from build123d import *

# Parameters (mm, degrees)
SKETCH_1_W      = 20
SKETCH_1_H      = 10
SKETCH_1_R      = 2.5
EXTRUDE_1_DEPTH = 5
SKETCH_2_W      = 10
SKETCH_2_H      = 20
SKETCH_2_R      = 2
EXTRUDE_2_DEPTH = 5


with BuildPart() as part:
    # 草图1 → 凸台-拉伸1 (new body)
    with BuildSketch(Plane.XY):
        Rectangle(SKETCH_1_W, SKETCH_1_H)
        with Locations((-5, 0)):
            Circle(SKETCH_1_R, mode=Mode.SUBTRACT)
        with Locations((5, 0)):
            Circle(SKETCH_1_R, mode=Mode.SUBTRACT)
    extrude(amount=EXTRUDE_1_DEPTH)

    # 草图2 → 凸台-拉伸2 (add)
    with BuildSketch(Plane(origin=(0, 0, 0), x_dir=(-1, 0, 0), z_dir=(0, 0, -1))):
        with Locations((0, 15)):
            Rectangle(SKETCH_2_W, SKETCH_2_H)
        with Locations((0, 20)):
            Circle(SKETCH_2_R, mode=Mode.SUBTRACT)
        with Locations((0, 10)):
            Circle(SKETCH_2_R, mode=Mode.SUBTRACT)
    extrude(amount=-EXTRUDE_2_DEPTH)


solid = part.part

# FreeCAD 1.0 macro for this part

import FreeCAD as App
import Part
import Sketcher
from FreeCAD import Vector


def add_polygon(sketch, points):
    """Adds a closed chain of lines whose ends are joined by coincident constraints."""
    first, n = sketch.GeometryCount, len(points)
    for a, b in zip(points, points[1:] + points[:1]):
        sketch.addGeometry(Part.LineSegment(App.Vector(*a, 0), App.Vector(*b, 0)), False)
    for i in range(n):
        sketch.addConstraint(Sketcher.Constraint("Coincident", first + i, 2, first + (i + 1) % n, 1))

doc = App.newDocument("Part")
params = doc.addObject("Spreadsheet::Sheet", "Params")
for row, (alias, value) in enumerate([
    ("sketch1_diameter", "5 mm"),
    ("sketch1_width", "20 mm"),
    ("sketch1_height", "10 mm"),
    ("pad1_length", "5 mm"),
    ("sketch2_diameter", "4 mm"),
    ("sketch2_width", "10 mm"),
    ("sketch2_height", "20 mm"),
    ("pad2_length", "5 mm"),
], start=1):
    params.set(f"A{row}", alias)
    params.set(f"B{row}", "=" + value)
    params.setAlias(f"B{row}", alias)

body = doc.addObject("PartDesign::Body", "Body")

sketch1 = doc.addObject("Sketcher::SketchObject", "Sketch")
body.addObject(sketch1)
sketch1.AttachmentSupport = (doc.XY_Plane, [""])
sketch1.MapMode = "FlatFace"
add_polygon(sketch1, [(-10, 5), (-10, -5), (10, -5), (10, 5)])
sketch1.addGeometry(Part.Circle(Vector(-5, 0, 0), Vector(0, 0, 1), 2.5), False)
sketch1.addGeometry(Part.Circle(Vector(5, 0, 0), Vector(0, 0, 1), 2.5), False)
sketch1.addConstraint([
    Sketcher.Constraint("Vertical", 0),
    Sketcher.Constraint("Horizontal", 1),
    Sketcher.Constraint("Vertical", 2),
    Sketcher.Constraint("Horizontal", 3),
    Sketcher.Constraint("Equal", 4, 5),
    Sketcher.Constraint("Symmetric", 4, 3, 5, 3, -1, 1),
    Sketcher.Constraint("Symmetric", 0, 2, 2, 2, -1, 1),
    Sketcher.Constraint("PointOnObject", 4, 3, -1),
    Sketcher.Constraint("Diameter", 4, 5.0),
    Sketcher.Constraint("DistanceX", 1, 1, 1, 2, 20.0),
    Sketcher.Constraint("DistanceY", 0, 2, 0, 1, 10.0),
    Sketcher.Constraint("DistanceX", 4, 3, -1, 1, 5.0),
])
sketch1.setExpression("Constraints[12]", "Params.sketch1_diameter")
sketch1.setExpression("Constraints[13]", "Params.sketch1_width")
sketch1.setExpression("Constraints[14]", "Params.sketch1_height")
pad1 = doc.addObject("PartDesign::Pad", "Pad")
body.addObject(pad1)
pad1.Profile = sketch1
pad1.setExpression("Length", "Params.pad1_length")

sketch2 = doc.addObject("Sketcher::SketchObject", "Sketch001")
body.addObject(sketch2)
sketch2.AttachmentSupport = (doc.XY_Plane, [""])
sketch2.MapMode = "FlatFace"
add_polygon(sketch2, [(5, 25), (5, 5), (-5, 5), (-5, 25)])
sketch2.addGeometry(Part.Circle(Vector(0, 10, 0), Vector(0, 0, 1), 2), False)
sketch2.addGeometry(Part.Circle(Vector(0, 20, 0), Vector(0, 0, 1), 2), False)
sketch2.addConstraint([
    Sketcher.Constraint("Vertical", 0),
    Sketcher.Constraint("Horizontal", 1),
    Sketcher.Constraint("Vertical", 2),
    Sketcher.Constraint("Horizontal", 3),
    Sketcher.Constraint("Equal", 4, 5),
    Sketcher.Constraint("PointOnObject", 4, 3, -2),
    Sketcher.Constraint("PointOnObject", 5, 3, -2),
    Sketcher.Constraint("Diameter", 4, 4.0),
    Sketcher.Constraint("DistanceX", 1, 2, 1, 1, 10.0),
    Sketcher.Constraint("DistanceY", 0, 2, 0, 1, 20.0),
    Sketcher.Constraint("DistanceY", -1, 1, 4, 3, 10.0),
    Sketcher.Constraint("DistanceY", -1, 1, 5, 3, 20.0),
    Sketcher.Constraint("DistanceX", -1, 1, 0, 2, 5.0),
    Sketcher.Constraint("DistanceY", -1, 1, 0, 2, 5.0),
])
sketch2.setExpression("Constraints[11]", "Params.sketch2_diameter")
sketch2.setExpression("Constraints[12]", "Params.sketch2_width")
sketch2.setExpression("Constraints[13]", "Params.sketch2_height")
pad2 = doc.addObject("PartDesign::Pad", "Pad001")
body.addObject(pad2)
pad2.Profile = sketch2
pad2.setExpression("Length", "Params.pad2_length")

doc.recompute()
